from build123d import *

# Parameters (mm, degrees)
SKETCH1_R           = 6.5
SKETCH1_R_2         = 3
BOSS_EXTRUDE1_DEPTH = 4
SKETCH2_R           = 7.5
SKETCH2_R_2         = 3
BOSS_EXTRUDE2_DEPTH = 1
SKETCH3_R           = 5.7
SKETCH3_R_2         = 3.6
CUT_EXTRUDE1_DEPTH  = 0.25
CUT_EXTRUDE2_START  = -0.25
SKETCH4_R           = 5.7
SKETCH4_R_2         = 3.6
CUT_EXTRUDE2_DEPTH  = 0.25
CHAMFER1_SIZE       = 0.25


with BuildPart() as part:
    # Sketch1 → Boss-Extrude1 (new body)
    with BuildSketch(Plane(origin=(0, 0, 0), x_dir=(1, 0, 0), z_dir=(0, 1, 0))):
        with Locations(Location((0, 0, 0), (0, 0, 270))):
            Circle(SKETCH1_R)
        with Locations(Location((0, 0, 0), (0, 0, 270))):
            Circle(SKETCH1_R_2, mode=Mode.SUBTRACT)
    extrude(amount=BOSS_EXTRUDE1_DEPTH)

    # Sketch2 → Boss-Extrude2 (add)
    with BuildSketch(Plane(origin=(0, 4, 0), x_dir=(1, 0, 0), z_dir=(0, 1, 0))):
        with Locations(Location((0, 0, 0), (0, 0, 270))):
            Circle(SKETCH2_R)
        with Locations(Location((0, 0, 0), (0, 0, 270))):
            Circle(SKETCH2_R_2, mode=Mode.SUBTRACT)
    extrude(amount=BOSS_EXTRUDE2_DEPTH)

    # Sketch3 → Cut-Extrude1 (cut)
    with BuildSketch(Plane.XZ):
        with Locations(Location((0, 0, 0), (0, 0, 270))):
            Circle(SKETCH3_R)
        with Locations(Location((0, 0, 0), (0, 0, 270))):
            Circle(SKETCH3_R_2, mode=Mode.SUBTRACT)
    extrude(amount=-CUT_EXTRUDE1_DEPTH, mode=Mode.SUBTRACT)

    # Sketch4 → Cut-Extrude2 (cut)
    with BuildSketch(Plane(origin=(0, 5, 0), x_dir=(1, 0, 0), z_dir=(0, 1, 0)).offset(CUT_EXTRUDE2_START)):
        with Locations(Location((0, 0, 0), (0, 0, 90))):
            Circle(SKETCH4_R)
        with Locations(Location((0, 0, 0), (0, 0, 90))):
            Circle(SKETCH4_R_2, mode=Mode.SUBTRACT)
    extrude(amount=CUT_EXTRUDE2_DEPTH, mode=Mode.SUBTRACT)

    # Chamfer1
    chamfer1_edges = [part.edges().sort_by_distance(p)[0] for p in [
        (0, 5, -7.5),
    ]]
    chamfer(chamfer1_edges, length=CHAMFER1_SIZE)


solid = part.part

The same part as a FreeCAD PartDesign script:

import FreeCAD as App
import Part
import Sketcher


def edges_at(feature, points):
    """Names of the edges that pass closest to the given points."""
    edges = feature.Shape.Edges
    near = lambda p: min(range(len(edges)), key=lambda i: edges[i].distToShape(Part.Vertex(*p))[0])
    return sorted({f"Edge{near(p) + 1}" for p in points})

doc = App.newDocument("Part")
body = doc.addObject("PartDesign::Body", "Body")

# Sketch on XZ plane
sketch1 = doc.addObject("Sketcher::SketchObject", "Sketch")
body.addObject(sketch1)
sketch1.AttachmentSupport = (doc.XZ_Plane, [""])
sketch1.MapMode = "FlatFace"
sketch1.addGeometry(Part.Circle(App.Vector(0, 0, 0), App.Vector(0, 0, 1), 6.5), False)
sketch1.addGeometry(Part.Circle(App.Vector(0, 0, 0), App.Vector(0, 0, 1), 3), False)
sketch1.addConstraint(Sketcher.Constraint("Coincident", 0, 3, -1, 1))
sketch1.addConstraint(Sketcher.Constraint("Coincident", 1, 3, -1, 1))
sketch1.addConstraint(Sketcher.Constraint("Diameter", 0, 13.0))
sketch1.addConstraint(Sketcher.Constraint("Diameter", 1, 6.0))
pad1 = doc.addObject("PartDesign::Pad", "Pad")
body.addObject(pad1)
pad1.Profile = sketch1
pad1.Length = 4
pad1.Reversed = True

# Sketch on XZ plane
sketch2 = doc.addObject("Sketcher::SketchObject", "Sketch001")
body.addObject(sketch2)
sketch2.AttachmentSupport = (doc.XZ_Plane, [""])
sketch2.MapMode = "FlatFace"
sketch2.AttachmentOffset = App.Placement(App.Vector(0, 0, -4), App.Rotation())
sketch2.addGeometry(Part.Circle(App.Vector(0, 0, 0), App.Vector(0, 0, 1), 7.5), False)
sketch2.addGeometry(Part.Circle(App.Vector(0, 0, 0), App.Vector(0, 0, 1), 3), False)
sketch2.addConstraint(Sketcher.Constraint("Coincident", 0, 3, -1, 1))
sketch2.addConstraint(Sketcher.Constraint("Coincident", 1, 3, -1, 1))
sketch2.addConstraint(Sketcher.Constraint("Diameter", 0, 15.0))
sketch2.addConstraint(Sketcher.Constraint("Diameter", 1, 6.0))
pad2 = doc.addObject("PartDesign::Pad", "Pad001")
body.addObject(pad2)
pad2.Profile = sketch2
pad2.Length = 1
pad2.Reversed = True

# Sketch on XZ plane
sketch3 = doc.addObject("Sketcher::SketchObject", "Sketch002")
body.addObject(sketch3)
sketch3.AttachmentSupport = (doc.XZ_Plane, [""])
sketch3.MapMode = "FlatFace"
sketch3.addGeometry(Part.Circle(App.Vector(0, 0, 0), App.Vector(0, 0, 1), 5.7), False)
sketch3.addGeometry(Part.Circle(App.Vector(0, 0, 0), App.Vector(0, 0, 1), 3.6), False)
sketch3.addConstraint(Sketcher.Constraint("Coincident", 0, 3, -1, 1))
sketch3.addConstraint(Sketcher.Constraint("Coincident", 1, 3, -1, 1))
sketch3.addConstraint(Sketcher.Constraint("Diameter", 0, 11.4))
sketch3.addConstraint(Sketcher.Constraint("Diameter", 1, 7.2))
pocket1 = doc.addObject("PartDesign::Pocket", "Pocket")
body.addObject(pocket1)
pocket1.Profile = sketch3
pocket1.Length = 0.25

# Sketch on XZ plane
sketch4 = doc.addObject("Sketcher::SketchObject", "Sketch003")
body.addObject(sketch4)
sketch4.AttachmentSupport = (doc.XZ_Plane, [""])
sketch4.MapMode = "FlatFace"
sketch4.AttachmentOffset = App.Placement(App.Vector(0, 0, -4.75), App.Rotation())
sketch4.addGeometry(Part.Circle(App.Vector(0, 0, 0), App.Vector(0, 0, 1), 5.7), False)
sketch4.addGeometry(Part.Circle(App.Vector(0, 0, 0), App.Vector(0, 0, 1), 3.6), False)
sketch4.addConstraint(Sketcher.Constraint("Coincident", 0, 3, -1, 1))
sketch4.addConstraint(Sketcher.Constraint("Coincident", 1, 3, -1, 1))
sketch4.addConstraint(Sketcher.Constraint("Diameter", 0, 11.4))
sketch4.addConstraint(Sketcher.Constraint("Diameter", 1, 7.2))
pocket2 = doc.addObject("PartDesign::Pocket", "Pocket001")
body.addObject(pocket2)
pocket2.Profile = sketch4
pocket2.Length = 0.25
doc.recompute()

chamfer = doc.addObject("PartDesign::Chamfer", "Chamfer")
body.addObject(chamfer)
chamfer.Base = (pocket2, edges_at(pocket2, [(0, 5, -7.5)]))
chamfer.Size = 0.25

doc.recompute()
